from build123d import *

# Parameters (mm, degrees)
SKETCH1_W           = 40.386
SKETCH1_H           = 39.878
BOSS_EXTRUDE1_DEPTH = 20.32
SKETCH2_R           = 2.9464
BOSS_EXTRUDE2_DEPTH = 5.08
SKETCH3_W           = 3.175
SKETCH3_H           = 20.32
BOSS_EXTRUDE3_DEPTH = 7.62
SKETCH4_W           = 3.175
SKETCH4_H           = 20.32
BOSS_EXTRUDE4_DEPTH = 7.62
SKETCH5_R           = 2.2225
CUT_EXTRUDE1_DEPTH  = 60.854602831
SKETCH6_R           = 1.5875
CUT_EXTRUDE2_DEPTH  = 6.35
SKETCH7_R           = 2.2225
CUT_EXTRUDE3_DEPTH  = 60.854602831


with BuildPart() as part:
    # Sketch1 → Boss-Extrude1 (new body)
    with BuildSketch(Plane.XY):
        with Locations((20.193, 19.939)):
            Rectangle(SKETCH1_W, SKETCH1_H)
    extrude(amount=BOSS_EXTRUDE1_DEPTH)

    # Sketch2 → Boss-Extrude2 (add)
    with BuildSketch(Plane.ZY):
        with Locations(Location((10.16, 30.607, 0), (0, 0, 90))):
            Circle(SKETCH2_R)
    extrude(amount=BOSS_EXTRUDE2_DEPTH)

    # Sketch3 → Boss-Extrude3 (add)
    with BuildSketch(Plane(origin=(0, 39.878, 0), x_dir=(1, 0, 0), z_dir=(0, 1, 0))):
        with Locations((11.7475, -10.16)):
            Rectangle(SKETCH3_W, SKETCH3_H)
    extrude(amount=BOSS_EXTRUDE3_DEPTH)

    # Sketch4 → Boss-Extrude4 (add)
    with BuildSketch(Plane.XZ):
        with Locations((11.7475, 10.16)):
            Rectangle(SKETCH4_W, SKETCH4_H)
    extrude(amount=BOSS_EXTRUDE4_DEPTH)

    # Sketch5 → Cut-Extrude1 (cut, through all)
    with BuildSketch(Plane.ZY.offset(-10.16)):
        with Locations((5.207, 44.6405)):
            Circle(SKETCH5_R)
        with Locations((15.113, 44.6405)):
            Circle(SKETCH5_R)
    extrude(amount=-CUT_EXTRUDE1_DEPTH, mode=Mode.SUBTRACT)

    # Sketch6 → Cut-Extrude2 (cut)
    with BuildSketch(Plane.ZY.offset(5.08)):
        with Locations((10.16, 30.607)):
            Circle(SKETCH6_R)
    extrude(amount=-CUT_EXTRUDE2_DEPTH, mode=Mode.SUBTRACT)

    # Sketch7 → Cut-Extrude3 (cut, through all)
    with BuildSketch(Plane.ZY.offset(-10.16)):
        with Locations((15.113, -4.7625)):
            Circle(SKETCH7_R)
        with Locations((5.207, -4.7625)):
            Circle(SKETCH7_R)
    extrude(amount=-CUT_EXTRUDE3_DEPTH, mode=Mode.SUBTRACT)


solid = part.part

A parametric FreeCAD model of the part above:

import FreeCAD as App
import Part
import Sketcher
from FreeCAD import Vector
Q = App.Units.Quantity

doc = App.newDocument("Part")
body = doc.addObject("PartDesign::Body", "Body")

sketch1 = body.newObject("Sketcher::SketchObject", "Sketch")
sketch1.AttachmentSupport = (doc.getObject("XY_Plane"), [""])
sketch1.MapMode = "FlatFace"
sketch1.addGeometry(Part.LineSegment(Vector(0, 40, 0), Vector(0, 0, 0)), False)
sketch1.addGeometry(Part.LineSegment(Vector(0, 0, 0), Vector(40, 0, 0)), False)
sketch1.addGeometry(Part.LineSegment(Vector(40, 0, 0), Vector(40, 40, 0)), False)
sketch1.addGeometry(Part.LineSegment(Vector(40, 40, 0), Vector(0, 40, 0)), False)
sketch1.addConstraint(Sketcher.Constraint("Coincident", 0, 2, 1, 1))
sketch1.addConstraint(Sketcher.Constraint("Coincident", 1, 2, 2, 1))
sketch1.addConstraint(Sketcher.Constraint("Coincident", 2, 2, 3, 1))
sketch1.addConstraint(Sketcher.Constraint("Coincident", 3, 2, 0, 1))
sketch1.addConstraint(Sketcher.Constraint("Vertical", 0))
sketch1.addConstraint(Sketcher.Constraint("Horizontal", 1))
sketch1.addConstraint(Sketcher.Constraint("Vertical", 2))
sketch1.addConstraint(Sketcher.Constraint("Horizontal", 3))
sketch1.addConstraint(Sketcher.Constraint("Coincident", 0, 2, -1, 1))
sketch1.addConstraint(Sketcher.Constraint("DistanceX", 1, 1, 1, 2, Q("1.59 in")))
sketch1.addConstraint(Sketcher.Constraint("DistanceY", 0, 2, 0, 1, Q("1.57 in")))
pad1 = body.newObject("PartDesign::Pad", "Pad")
pad1.Profile = sketch1
pad1.Length = Q("0.8 in")

sketch2 = body.newObject("Sketcher::SketchObject", "Sketch001")
sketch2.AttachmentSupport = (doc.getObject("YZ_Plane"), [""])
sketch2.MapMode = "FlatFace"
sketch2.addGeometry(Part.Circle(Vector(30.6, 10.2, 0), Vector(0, 0, 1), 2.9), False)
sketch2.addConstraint(Sketcher.Constraint("Diameter", 0, Q("0.232 in")))
sketch2.addConstraint(Sketcher.Constraint("DistanceY", -1, 1, 0, 3, Q("0.4 in")))
sketch2.addConstraint(Sketcher.Constraint("DistanceX", -1, 1, 0, 3, Q("1.205 in")))
pad2 = body.newObject("PartDesign::Pad", "Pad001")
pad2.Profile = sketch2
pad2.Length = Q("0.2 in")
pad2.Reversed = True

sketch3 = body.newObject("Sketcher::SketchObject", "Sketch002")
sketch3.AttachmentSupport = (doc.getObject("XZ_Plane"), [""])
sketch3.MapMode = "FlatFace"
sketch3.AttachmentOffset = App.Placement(Vector(0, 0, -1.57 * 25.4), App.Rotation())
sketch3.addGeometry(Part.LineSegment(Vector(10.2, 0, 0), Vector(10.2, 20.3, 0)), False)
sketch3.addGeometry(Part.LineSegment(Vector(10.2, 20.3, 0), Vector(13.3, 20.3, 0)), False)
sketch3.addGeometry(Part.LineSegment(Vector(13.3, 20.3, 0), Vector(13.3, 0, 0)), False)
sketch3.addGeometry(Part.LineSegment(Vector(13.3, 0, 0), Vector(10.2, 0, 0)), False)
sketch3.addConstraint(Sketcher.Constraint("Coincident", 0, 2, 1, 1))
sketch3.addConstraint(Sketcher.Constraint("Coincident", 1, 2, 2, 1))
sketch3.addConstraint(Sketcher.Constraint("Coincident", 2, 2, 3, 1))
sketch3.addConstraint(Sketcher.Constraint("Coincident", 3, 2, 0, 1))
sketch3.addConstraint(Sketcher.Constraint("Vertical", 0))
sketch3.addConstraint(Sketcher.Constraint("Horizontal", 1))
sketch3.addConstraint(Sketcher.Constraint("Vertical", 2))
sketch3.addConstraint(Sketcher.Constraint("Horizontal", 3))
sketch3.addConstraint(Sketcher.Constraint("PointOnObject", 2, 2, -1))
sketch3.addConstraint(Sketcher.Constraint("DistanceY", 0, 1, 0, 2, Q("0.8 in")))
sketch3.addConstraint(Sketcher.Constraint("DistanceX", -1, 1, 0, 2, Q("0.4 in")))
sketch3.addConstraint(Sketcher.Constraint("DistanceX", 1, 1, 1, 2, Q("0.125 in")))
pad3 = body.newObject("PartDesign::Pad", "Pad002")
pad3.Profile = sketch3
pad3.Length = Q("0.3 in")
pad3.Reversed = True

sketch4 = body.newObject("Sketcher::SketchObject", "Sketch003")
sketch4.AttachmentSupport = (doc.getObject("XZ_Plane"), [""])
sketch4.MapMode = "FlatFace"
sketch4.addGeometry(Part.LineSegment(Vector(10.2, 20.3, 0), Vector(10.2, 0, 0)), False)
sketch4.addGeometry(Part.LineSegment(Vector(10.2, 0, 0), Vector(13.3, 0, 0)), False)
sketch4.addGeometry(Part.LineSegment(Vector(13.3, 0, 0), Vector(13.3, 20.3, 0)), False)
sketch4.addGeometry(Part.LineSegment(Vector(13.3, 20.3, 0), Vector(10.2, 20.3, 0)), False)
sketch4.addConstraint(Sketcher.Constraint("Coincident", 0, 2, 1, 1))
sketch4.addConstraint(Sketcher.Constraint("Coincident", 1, 2, 2, 1))
sketch4.addConstraint(Sketcher.Constraint("Coincident", 2, 2, 3, 1))
sketch4.addConstraint(Sketcher.Constraint("Coincident", 3, 2, 0, 1))
sketch4.addConstraint(Sketcher.Constraint("Vertical", 0))
sketch4.addConstraint(Sketcher.Constraint("Horizontal", 1))
sketch4.addConstraint(Sketcher.Constraint("Vertical", 2))
sketch4.addConstraint(Sketcher.Constraint("Horizontal", 3))
sketch4.addConstraint(Sketcher.Constraint("PointOnObject", 0, 2, -1))
sketch4.addConstraint(Sketcher.Constraint("DistanceY", 0, 2, 0, 1, Q("0.8 in")))
sketch4.addConstraint(Sketcher.Constraint("DistanceX", -1, 1, 0, 2, Q("0.4 in")))
sketch4.addConstraint(Sketcher.Constraint("DistanceX", 1, 1, 1, 2, Q("0.125 in")))
pad4 = body.newObject("PartDesign::Pad", "Pad003")
pad4.Profile = sketch4
pad4.Length = Q("0.3 in")

sketch5 = body.newObject("Sketcher::SketchObject", "Sketch004")
sketch5.AttachmentSupport = (doc.getObject("YZ_Plane"), [""])
sketch5.MapMode = "FlatFace"
sketch5.AttachmentOffset = App.Placement(Vector(0, 0, 0.4 * 25.4), App.Rotation())
sketch5.addGeometry(Part.Circle(Vector(44.6, 5.2, 0), Vector(0, 0, 1), 2.2), False)
sketch5.addGeometry(Part.Circle(Vector(44.6, 15.1, 0), Vector(0, 0, 1), 2.2), False)
sketch5.addConstraint(Sketcher.Constraint("Equal", 0, 1))
sketch5.addConstraint(Sketcher.Constraint("Vertical", 0, 3, 1, 3))
sketch5.addConstraint(Sketcher.Constraint("Diameter", 0, Q("0.175 in")))
sketch5.addConstraint(Sketcher.Constraint("DistanceY", 0, 3, 1, 3, Q("0.39 in")))
sketch5.addConstraint(Sketcher.Constraint("DistanceY", -1, 1, 0, 3, Q("0.205 in")))
sketch5.addConstraint(Sketcher.Constraint("DistanceX", -1, 1, 0, 3, Q("1.7575 in")))
pocket1 = body.newObject("PartDesign::Pocket", "Pocket")
pocket1.Profile = sketch5
pocket1.Type = "ThroughAll"
pocket1.Reversed = True

sketch6 = body.newObject("Sketcher::SketchObject", "Sketch005")
sketch6.AttachmentSupport = (doc.getObject("YZ_Plane"), [""])
sketch6.MapMode = "FlatFace"
sketch6.AttachmentOffset = App.Placement(Vector(0, 0, -0.2 * 25.4), App.Rotation())
sketch6.addGeometry(Part.Circle(Vector(30.6, 10.2, 0), Vector(0, 0, 1), 1.6), False)
sketch6.addConstraint(Sketcher.Constraint("Diameter", 0, Q("0.125 in")))
sketch6.addConstraint(Sketcher.Constraint("DistanceY", -1, 1, 0, 3, Q("0.4 in")))
sketch6.addConstraint(Sketcher.Constraint("DistanceX", -1, 1, 0, 3, Q("1.205 in")))
pocket2 = body.newObject("PartDesign::Pocket", "Pocket001")
pocket2.Profile = sketch6
pocket2.Length = Q("0.25 in")
pocket2.Reversed = True

sketch7 = body.newObject("Sketcher::SketchObject", "Sketch006")
sketch7.AttachmentSupport = (doc.getObject("YZ_Plane"), [""])
sketch7.MapMode = "FlatFace"
sketch7.AttachmentOffset = App.Placement(Vector(0, 0, 0.4 * 25.4), App.Rotation())
sketch7.addGeometry(Part.Circle(Vector(-4.8, 15.1, 0), Vector(0, 0, 1), 2.2), False)
sketch7.addGeometry(Part.Circle(Vector(-4.8, 5.2, 0), Vector(0, 0, 1), 2.2), False)
sketch7.addConstraint(Sketcher.Constraint("Equal", 0, 1))
sketch7.addConstraint(Sketcher.Constraint("Vertical", 0, 3, 1, 3))
sketch7.addConstraint(Sketcher.Constraint("Diameter", 0, Q("0.175 in")))
sketch7.addConstraint(Sketcher.Constraint("DistanceY", 1, 3, 0, 3, Q("0.39 in")))
sketch7.addConstraint(Sketcher.Constraint("DistanceX", 0, 3, -1, 1, Q("0.1875 in")))
sketch7.addConstraint(Sketcher.Constraint("DistanceY", -1, 1, 0, 3, Q("0.595 in")))
pocket3 = body.newObject("PartDesign::Pocket", "Pocket002")
pocket3.Profile = sketch7
pocket3.Type = "ThroughAll"
pocket3.Reversed = True

doc.recompute()
